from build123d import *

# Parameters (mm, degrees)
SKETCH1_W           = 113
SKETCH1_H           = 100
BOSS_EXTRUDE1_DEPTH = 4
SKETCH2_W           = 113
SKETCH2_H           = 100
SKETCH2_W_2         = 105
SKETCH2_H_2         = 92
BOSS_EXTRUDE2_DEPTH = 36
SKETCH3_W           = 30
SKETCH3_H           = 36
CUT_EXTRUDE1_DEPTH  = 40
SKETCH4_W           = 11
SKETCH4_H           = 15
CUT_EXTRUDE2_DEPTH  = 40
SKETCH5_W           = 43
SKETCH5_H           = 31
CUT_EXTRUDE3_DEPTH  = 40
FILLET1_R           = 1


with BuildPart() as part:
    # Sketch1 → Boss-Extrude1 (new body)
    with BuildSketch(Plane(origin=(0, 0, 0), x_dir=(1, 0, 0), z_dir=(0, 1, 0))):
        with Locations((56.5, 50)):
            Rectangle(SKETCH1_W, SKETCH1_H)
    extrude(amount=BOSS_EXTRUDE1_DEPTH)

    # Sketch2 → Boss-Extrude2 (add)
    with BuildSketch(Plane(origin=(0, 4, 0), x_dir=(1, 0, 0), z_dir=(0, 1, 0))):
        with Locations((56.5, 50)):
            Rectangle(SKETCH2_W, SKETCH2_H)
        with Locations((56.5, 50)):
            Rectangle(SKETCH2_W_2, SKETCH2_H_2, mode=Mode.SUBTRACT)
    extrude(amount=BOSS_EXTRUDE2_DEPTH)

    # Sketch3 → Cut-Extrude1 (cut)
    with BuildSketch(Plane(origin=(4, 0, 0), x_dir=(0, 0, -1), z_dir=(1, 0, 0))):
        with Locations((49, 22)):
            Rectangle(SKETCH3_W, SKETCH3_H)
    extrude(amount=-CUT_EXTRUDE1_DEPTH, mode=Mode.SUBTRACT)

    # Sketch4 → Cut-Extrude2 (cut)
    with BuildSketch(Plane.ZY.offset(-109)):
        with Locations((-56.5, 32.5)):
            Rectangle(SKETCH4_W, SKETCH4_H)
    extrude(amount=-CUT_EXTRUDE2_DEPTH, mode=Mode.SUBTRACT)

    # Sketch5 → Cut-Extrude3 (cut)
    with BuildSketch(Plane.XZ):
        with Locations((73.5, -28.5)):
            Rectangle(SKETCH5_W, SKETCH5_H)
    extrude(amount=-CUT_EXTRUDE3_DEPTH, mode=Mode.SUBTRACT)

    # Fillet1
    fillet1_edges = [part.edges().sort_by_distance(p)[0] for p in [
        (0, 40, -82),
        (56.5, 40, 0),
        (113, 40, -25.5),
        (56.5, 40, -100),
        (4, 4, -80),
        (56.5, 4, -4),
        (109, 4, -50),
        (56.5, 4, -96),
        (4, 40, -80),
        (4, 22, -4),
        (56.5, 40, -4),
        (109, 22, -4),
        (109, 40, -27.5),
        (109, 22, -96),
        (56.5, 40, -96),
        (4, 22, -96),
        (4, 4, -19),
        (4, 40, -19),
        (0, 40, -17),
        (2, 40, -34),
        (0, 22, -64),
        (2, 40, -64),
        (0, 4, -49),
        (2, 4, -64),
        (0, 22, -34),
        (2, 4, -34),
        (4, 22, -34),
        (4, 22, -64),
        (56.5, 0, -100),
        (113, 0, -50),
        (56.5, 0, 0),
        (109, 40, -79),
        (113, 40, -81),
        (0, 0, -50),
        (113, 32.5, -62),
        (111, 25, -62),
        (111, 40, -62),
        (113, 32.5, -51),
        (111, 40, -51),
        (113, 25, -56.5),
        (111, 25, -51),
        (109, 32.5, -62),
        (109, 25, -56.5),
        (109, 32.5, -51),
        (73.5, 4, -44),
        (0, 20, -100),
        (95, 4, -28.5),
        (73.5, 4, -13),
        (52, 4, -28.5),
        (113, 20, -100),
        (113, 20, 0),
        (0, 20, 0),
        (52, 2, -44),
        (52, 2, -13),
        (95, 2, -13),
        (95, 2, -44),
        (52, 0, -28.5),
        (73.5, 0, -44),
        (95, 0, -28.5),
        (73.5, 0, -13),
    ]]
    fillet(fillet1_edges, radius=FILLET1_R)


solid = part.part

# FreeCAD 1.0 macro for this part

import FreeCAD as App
import Part
import Sketcher

V = App.Vector
Q = App.Units.Quantity

doc = App.newDocument("Part")
body = doc.addObject("PartDesign::Body", "Body")

# Sketch on XZ plane
sketch1 = body.newObject("Sketcher::SketchObject", "Sketch")
sketch1.AttachmentSupport = (doc.getObject("XZ_Plane"), [""])
sketch1.MapMode = "FlatFace"
sketch1.addGeometry([
    Part.LineSegment(V(0, -100, 0), V(0, 0, 0)),
    Part.LineSegment(V(0, 0, 0), V(113, 0, 0)),
    Part.LineSegment(V(113, 0, 0), V(113, -100, 0)),
    Part.LineSegment(V(113, -100, 0), V(0, -100, 0)),
], False)
sketch1.addConstraint([
    Sketcher.Constraint("Coincident", 0, 2, 1, 1),
    Sketcher.Constraint("Coincident", 1, 2, 2, 1),
    Sketcher.Constraint("Coincident", 2, 2, 3, 1),
    Sketcher.Constraint("Coincident", 3, 2, 0, 1),
    Sketcher.Constraint("Vertical", 0),
    Sketcher.Constraint("Horizontal", 1),
    Sketcher.Constraint("Vertical", 2),
    Sketcher.Constraint("Horizontal", 3),
    Sketcher.Constraint("Coincident", 0, 2, -1, 1),
    Sketcher.Constraint("DistanceX", 1, 1, 1, 2, Q("113 mm")),
    Sketcher.Constraint("DistanceY", 0, 1, 0, 2, Q("100 mm")),
])
pad1 = body.newObject("PartDesign::Pad", "Pad")
pad1.Profile = sketch1
pad1.Length = 4
pad1.Reversed = True

# Sketch on XZ plane
sketch2 = body.newObject("Sketcher::SketchObject", "Sketch001")
sketch2.AttachmentSupport = (doc.getObject("XZ_Plane"), [""])
sketch2.MapMode = "FlatFace"
sketch2.AttachmentOffset = App.Placement(V(0, 0, -4), App.Rotation())
sketch2.addGeometry([
    Part.LineSegment(V(0, -100, 0), V(0, 0, 0)),  # 0
    Part.LineSegment(V(0, 0, 0), V(113, 0, 0)),  # 1
    Part.LineSegment(V(113, 0, 0), V(113, -100, 0)),  # 2
    Part.LineSegment(V(113, -100, 0), V(0, -100, 0)),  # 3
    Part.LineSegment(V(109, -4, 0), V(4, -4, 0)),  # 4
    Part.LineSegment(V(4, -4, 0), V(4, -96, 0)),  # 5
    Part.LineSegment(V(4, -96, 0), V(109, -96, 0)),  # 6
    Part.LineSegment(V(109, -96, 0), V(109, -4, 0)),  # 7
], False)
sketch2.addConstraint([
    Sketcher.Constraint("Coincident", 0, 2, 1, 1),
    Sketcher.Constraint("Coincident", 1, 2, 2, 1),
    Sketcher.Constraint("Coincident", 2, 2, 3, 1),
    Sketcher.Constraint("Coincident", 3, 2, 0, 1),
    Sketcher.Constraint("Coincident", 4, 2, 5, 1),
    Sketcher.Constraint("Coincident", 5, 2, 6, 1),
    Sketcher.Constraint("Coincident", 6, 2, 7, 1),
    Sketcher.Constraint("Coincident", 7, 2, 4, 1),
    Sketcher.Constraint("Vertical", 0),
    Sketcher.Constraint("Horizontal", 1),
    Sketcher.Constraint("Vertical", 2),
    Sketcher.Constraint("Horizontal", 3),
    Sketcher.Constraint("Horizontal", 4),
    Sketcher.Constraint("Vertical", 5),
    Sketcher.Constraint("Horizontal", 6),
    Sketcher.Constraint("Vertical", 7),
    Sketcher.Constraint("Coincident", 0, 2, -1, 1),
    Sketcher.Constraint("DistanceX", 1, 1, 1, 2, Q("113 mm")),
    Sketcher.Constraint("DistanceX", 4, 2, 4, 1, Q("105 mm")),
    Sketcher.Constraint("DistanceY", 0, 1, 0, 2, Q("100 mm")),
    Sketcher.Constraint("DistanceY", 5, 2, 5, 1, Q("92 mm")),
    Sketcher.Constraint("DistanceX", -1, 1, 4, 2, Q("4 mm")),
    Sketcher.Constraint("DistanceY", 4, 2, -1, 1, Q("4 mm")),
])
pad2 = body.newObject("PartDesign::Pad", "Pad001")
pad2.Profile = sketch2
pad2.Length = 36
pad2.Reversed = True

# Sketch on YZ plane
sketch3 = body.newObject("Sketcher::SketchObject", "Sketch002")
sketch3.AttachmentSupport = (doc.getObject("YZ_Plane"), [""])
sketch3.MapMode = "FlatFace"
sketch3.AttachmentOffset = App.Placement(V(0, 0, 4), App.Rotation())
sketch3.addGeometry([
    Part.LineSegment(V(40, -34, 0), V(4, -34, 0)),
    Part.LineSegment(V(4, -34, 0), V(4, -64, 0)),
    Part.LineSegment(V(4, -64, 0), V(40, -64, 0)),
    Part.LineSegment(V(40, -64, 0), V(40, -34, 0)),
], False)
sketch3.addConstraint([
    Sketcher.Constraint("Coincident", 0, 2, 1, 1),
    Sketcher.Constraint("Coincident", 1, 2, 2, 1),
    Sketcher.Constraint("Coincident", 2, 2, 3, 1),
    Sketcher.Constraint("Coincident", 3, 2, 0, 1),
    Sketcher.Constraint("Horizontal", 0),
    Sketcher.Constraint("Vertical", 1),
    Sketcher.Constraint("Horizontal", 2),
    Sketcher.Constraint("Vertical", 3),
    Sketcher.Constraint("DistanceX", 0, 2, 0, 1, Q("36 mm")),
    Sketcher.Constraint("DistanceY", 1, 2, 1, 1, Q("30 mm")),
    Sketcher.Constraint("DistanceX", -1, 1, 0, 2, Q("4 mm")),
    Sketcher.Constraint("DistanceY", 0, 2, -1, 1, Q("34 mm")),
])
pocket1 = body.newObject("PartDesign::Pocket", "Pocket")
pocket1.Profile = sketch3
pocket1.Length = 40

# Sketch on YZ plane
sketch4 = body.newObject("Sketcher::SketchObject", "Sketch003")
sketch4.AttachmentSupport = (doc.getObject("YZ_Plane"), [""])
sketch4.MapMode = "FlatFace"
sketch4.AttachmentOffset = App.Placement(V(0, 0, 109), App.Rotation())
sketch4.addGeometry([
    Part.LineSegment(V(40, -62, 0), V(25, -62, 0)),
    Part.LineSegment(V(25, -62, 0), V(25, -51, 0)),
    Part.LineSegment(V(25, -51, 0), V(40, -51, 0)),
    Part.LineSegment(V(40, -51, 0), V(40, -62, 0)),
], False)
sketch4.addConstraint([
    Sketcher.Constraint("Coincident", 0, 2, 1, 1),
    Sketcher.Constraint("Coincident", 1, 2, 2, 1),
    Sketcher.Constraint("Coincident", 2, 2, 3, 1),
    Sketcher.Constraint("Coincident", 3, 2, 0, 1),
    Sketcher.Constraint("Horizontal", 0),
    Sketcher.Constraint("Vertical", 1),
    Sketcher.Constraint("Horizontal", 2),
    Sketcher.Constraint("Vertical", 3),
    Sketcher.Constraint("DistanceX", 0, 2, 0, 1, Q("15 mm")),
    Sketcher.Constraint("DistanceY", 1, 1, 1, 2, Q("11 mm")),
    Sketcher.Constraint("DistanceX", -1, 1, 0, 2, Q("25 mm")),
    Sketcher.Constraint("DistanceY", 0, 2, -1, 1, Q("62 mm")),
])
pocket2 = body.newObject("PartDesign::Pocket", "Pocket001")
pocket2.Profile = sketch4
pocket2.Length = 40
pocket2.Reversed = True

# Sketch on XZ plane
sketch5 = body.newObject("Sketcher::SketchObject", "Sketch004")
sketch5.AttachmentSupport = (doc.getObject("XZ_Plane"), [""])
sketch5.MapMode = "FlatFace"
sketch5.addGeometry([
    Part.LineSegment(V(52, -13, 0), V(52, -44, 0)),
    Part.LineSegment(V(52, -44, 0), V(95, -44, 0)),
    Part.LineSegment(V(95, -44, 0), V(95, -13, 0)),
    Part.LineSegment(V(95, -13, 0), V(52, -13, 0)),
], False)
sketch5.addConstraint([
    Sketcher.Constraint("Coincident", 0, 2, 1, 1),
    Sketcher.Constraint("Coincident", 1, 2, 2, 1),
    Sketcher.Constraint("Coincident", 2, 2, 3, 1),
    Sketcher.Constraint("Coincident", 3, 2, 0, 1),
    Sketcher.Constraint("Vertical", 0),
    Sketcher.Constraint("Horizontal", 1),
    Sketcher.Constraint("Vertical", 2),
    Sketcher.Constraint("Horizontal", 3),
    Sketcher.Constraint("DistanceX", 1, 1, 1, 2, Q("43 mm")),
    Sketcher.Constraint("DistanceY", 0, 2, 0, 1, Q("31 mm")),
    Sketcher.Constraint("DistanceX", -1, 1, 0, 2, Q("52 mm")),
    Sketcher.Constraint("DistanceY", 0, 2, -1, 1, Q("44 mm")),
])
pocket3 = body.newObject("PartDesign::Pocket", "Pocket002")
pocket3.Profile = sketch5
pocket3.Length = 40
doc.recompute()

fillet = body.newObject("PartDesign::Fillet", "Fillet")
fillet.Base = (pocket3, ["Edge1"])
fillet.UseAllEdges = True
fillet.Radius = 1

doc.recompute()
